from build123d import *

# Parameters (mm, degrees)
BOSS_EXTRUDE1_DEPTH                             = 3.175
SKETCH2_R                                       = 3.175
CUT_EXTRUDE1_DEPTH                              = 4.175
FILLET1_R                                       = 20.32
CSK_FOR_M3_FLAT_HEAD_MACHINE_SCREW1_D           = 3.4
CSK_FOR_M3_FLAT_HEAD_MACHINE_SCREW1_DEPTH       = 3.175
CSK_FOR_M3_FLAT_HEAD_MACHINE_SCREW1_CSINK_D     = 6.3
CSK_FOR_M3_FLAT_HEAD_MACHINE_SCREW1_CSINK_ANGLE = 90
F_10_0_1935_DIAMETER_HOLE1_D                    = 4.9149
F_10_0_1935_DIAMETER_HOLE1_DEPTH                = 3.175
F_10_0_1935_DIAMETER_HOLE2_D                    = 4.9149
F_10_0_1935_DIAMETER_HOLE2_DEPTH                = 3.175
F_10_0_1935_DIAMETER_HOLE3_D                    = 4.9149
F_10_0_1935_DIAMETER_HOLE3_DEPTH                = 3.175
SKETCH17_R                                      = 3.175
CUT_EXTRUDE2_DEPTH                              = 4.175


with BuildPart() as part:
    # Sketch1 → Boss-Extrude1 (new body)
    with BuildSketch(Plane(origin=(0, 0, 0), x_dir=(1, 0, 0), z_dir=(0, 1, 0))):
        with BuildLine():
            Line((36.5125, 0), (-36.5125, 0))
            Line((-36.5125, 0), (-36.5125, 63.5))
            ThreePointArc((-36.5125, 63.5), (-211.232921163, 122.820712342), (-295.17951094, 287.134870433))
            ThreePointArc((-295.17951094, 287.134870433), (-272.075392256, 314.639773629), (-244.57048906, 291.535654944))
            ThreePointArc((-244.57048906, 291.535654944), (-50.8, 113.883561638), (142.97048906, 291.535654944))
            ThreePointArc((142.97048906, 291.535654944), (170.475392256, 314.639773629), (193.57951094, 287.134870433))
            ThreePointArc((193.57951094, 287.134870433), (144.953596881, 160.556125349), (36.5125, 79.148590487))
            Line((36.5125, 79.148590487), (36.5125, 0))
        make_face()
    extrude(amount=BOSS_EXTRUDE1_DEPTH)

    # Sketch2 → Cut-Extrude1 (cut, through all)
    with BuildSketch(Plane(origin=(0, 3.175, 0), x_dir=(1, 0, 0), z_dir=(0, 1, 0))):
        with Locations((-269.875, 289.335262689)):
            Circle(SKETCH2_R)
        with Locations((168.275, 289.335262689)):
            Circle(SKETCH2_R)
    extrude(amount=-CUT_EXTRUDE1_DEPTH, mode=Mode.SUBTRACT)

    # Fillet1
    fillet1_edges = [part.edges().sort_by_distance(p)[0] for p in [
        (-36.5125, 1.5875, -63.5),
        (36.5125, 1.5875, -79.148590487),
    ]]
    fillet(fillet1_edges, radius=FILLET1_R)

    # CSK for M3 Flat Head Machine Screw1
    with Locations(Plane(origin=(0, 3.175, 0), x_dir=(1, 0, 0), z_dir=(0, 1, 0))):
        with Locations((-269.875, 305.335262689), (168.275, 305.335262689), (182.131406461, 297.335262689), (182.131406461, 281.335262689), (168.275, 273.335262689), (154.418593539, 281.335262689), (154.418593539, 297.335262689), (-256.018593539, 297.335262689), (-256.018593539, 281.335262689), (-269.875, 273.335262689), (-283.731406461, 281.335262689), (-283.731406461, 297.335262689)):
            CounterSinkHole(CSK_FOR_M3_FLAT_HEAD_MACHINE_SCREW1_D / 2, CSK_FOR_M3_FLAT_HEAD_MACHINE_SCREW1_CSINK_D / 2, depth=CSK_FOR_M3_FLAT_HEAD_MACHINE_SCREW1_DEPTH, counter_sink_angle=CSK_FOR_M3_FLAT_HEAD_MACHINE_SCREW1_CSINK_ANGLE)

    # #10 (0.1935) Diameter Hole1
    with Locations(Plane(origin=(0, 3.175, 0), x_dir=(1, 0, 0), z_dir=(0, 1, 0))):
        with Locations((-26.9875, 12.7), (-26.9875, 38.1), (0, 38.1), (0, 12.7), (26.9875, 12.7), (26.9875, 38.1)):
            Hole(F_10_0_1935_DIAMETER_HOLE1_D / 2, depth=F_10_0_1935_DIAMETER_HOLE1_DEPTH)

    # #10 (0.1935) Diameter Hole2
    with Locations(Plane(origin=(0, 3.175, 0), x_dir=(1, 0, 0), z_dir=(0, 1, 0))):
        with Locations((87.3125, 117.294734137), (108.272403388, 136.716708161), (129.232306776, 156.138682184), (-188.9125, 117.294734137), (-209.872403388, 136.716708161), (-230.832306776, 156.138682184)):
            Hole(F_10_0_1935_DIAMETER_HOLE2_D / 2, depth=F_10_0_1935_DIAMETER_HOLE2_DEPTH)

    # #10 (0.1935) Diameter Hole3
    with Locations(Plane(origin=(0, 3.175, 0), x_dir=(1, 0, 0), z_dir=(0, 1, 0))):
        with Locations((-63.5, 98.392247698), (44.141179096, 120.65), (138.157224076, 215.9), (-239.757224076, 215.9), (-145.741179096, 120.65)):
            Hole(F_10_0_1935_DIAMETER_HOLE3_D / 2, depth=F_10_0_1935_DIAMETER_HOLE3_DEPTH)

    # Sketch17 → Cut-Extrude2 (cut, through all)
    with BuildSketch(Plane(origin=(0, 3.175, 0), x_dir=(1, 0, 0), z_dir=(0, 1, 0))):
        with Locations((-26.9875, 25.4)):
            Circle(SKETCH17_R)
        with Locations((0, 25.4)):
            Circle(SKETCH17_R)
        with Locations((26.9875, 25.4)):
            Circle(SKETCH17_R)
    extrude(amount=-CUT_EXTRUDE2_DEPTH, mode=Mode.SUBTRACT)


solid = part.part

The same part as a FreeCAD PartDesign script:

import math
import FreeCAD as App
import Part
import Sketcher
from FreeCAD import Vector
Q = App.Units.Quantity


def edges_at(feature, points):
    """Names of the edges that pass closest to the given points."""
    edges = feature.Shape.Edges
    near = lambda p: min(range(len(edges)), key=lambda i: edges[i].distToShape(Part.Vertex(*p))[0])
    return sorted({f"Edge{near(p) + 1}" for p in points})

doc = App.newDocument("Part")
body = doc.addObject("PartDesign::Body", "Body")

sketch1 = doc.addObject("Sketcher::SketchObject", "Sketch")
body.addObject(sketch1)
sketch1.AttachmentSupport = (doc.XZ_Plane, [""])
sketch1.MapMode = "FlatFace"
sketch1.addGeometry(Part.LineSegment(Vector(-37, 0, 0), Vector(37, 0, 0)), False)
sketch1.addGeometry(Part.LineSegment(Vector(37, 0, 0), Vector(37, -79, 0)), False)
sketch1.addGeometry(Part.ArcOfCircle(Part.Circle(Vector(-51, -308, 0), Vector(0, 0, 1), 245), math.radians(5), math.radians(69)), False)
sketch1.addGeometry(Part.ArcOfCircle(Part.Circle(Vector(168, -289, 0), Vector(0, 0, 1), 25), math.radians(-175), math.radians(5)), False)
sketch1.addGeometry(Part.ArcOfCircle(Part.Circle(Vector(-51, -308, 0), Vector(0, 0, 1), 195), math.radians(5), math.radians(175)), False)
sketch1.addGeometry(Part.ArcOfCircle(Part.Circle(Vector(-270, -289, 0), Vector(0, 0, 1), 25), math.radians(175), math.radians(355)), False)
sketch1.addGeometry(Part.ArcOfCircle(Part.Circle(Vector(-51, -308, 0), Vector(0, 0, 1), 245), math.radians(87), math.radians(175)), False)
sketch1.addGeometry(Part.LineSegment(Vector(-37, -64, 0), Vector(-37, 0, 0)), False)
sketch1.addConstraint(Sketcher.Constraint("Coincident", 0, 2, 1, 1))
sketch1.addConstraint(Sketcher.Constraint("Coincident", 1, 2, 2, 2))
sketch1.addConstraint(Sketcher.Constraint("Tangent", 2, 1, 3, 2))
sketch1.addConstraint(Sketcher.Constraint("Tangent", 3, 1, 4, 1))
sketch1.addConstraint(Sketcher.Constraint("Tangent", 4, 2, 5, 2))
sketch1.addConstraint(Sketcher.Constraint("Tangent", 5, 1, 6, 2))
sketch1.addConstraint(Sketcher.Constraint("Coincident", 6, 1, 7, 1))
sketch1.addConstraint(Sketcher.Constraint("Coincident", 7, 2, 0, 1))
sketch1.addConstraint(Sketcher.Constraint("Horizontal", 0))
sketch1.addConstraint(Sketcher.Constraint("Vertical", 1))
sketch1.addConstraint(Sketcher.Constraint("Vertical", 7))
sketch1.addConstraint(Sketcher.Constraint("Coincident", 4, 3, 2, 3))
sketch1.addConstraint(Sketcher.Constraint("Coincident", 6, 3, 2, 3))
sketch1.addConstraint(Sketcher.Constraint("Equal", 3, 5))
sketch1.addConstraint(Sketcher.Constraint("Symmetric", 0, 2, 7, 2, -1, 1))
sketch1.addConstraint(Sketcher.Constraint("Horizontal", 3, 3, 5, 3))
sketch1.addConstraint(Sketcher.Constraint("Radius", 3, Q("1 in")))
sketch1.addConstraint(Sketcher.Constraint("DistanceY", 7, 1, 7, 2, Q("2.5 in")))
sketch1.addConstraint(Sketcher.Constraint("DistanceX", 2, 3, -1, 1, Q("2 in")))
sketch1.addConstraint(Sketcher.Constraint("DistanceX", 0, 1, 0, 2, Q("2.875 in")))
sketch1.addConstraint(Sketcher.Constraint("Radius", 2, 245.301701))
sketch1.addConstraint(Sketcher.Constraint("DistanceY", 2, 3, 3, 3, Q("0.75 in")))
pad1 = doc.addObject("PartDesign::Pad", "Pad")
body.addObject(pad1)
pad1.Profile = sketch1
pad1.Length = Q("0.125 in")
pad1.Reversed = True

sketch2 = doc.addObject("Sketcher::SketchObject", "Sketch001")
body.addObject(sketch2)
sketch2.AttachmentSupport = (doc.XZ_Plane, [""])
sketch2.MapMode = "FlatFace"
sketch2.AttachmentOffset = App.Placement(Vector(0, 0, -0.125 * 25.4), App.Rotation())
sketch2.addGeometry(Part.Circle(Vector(-269.9, -289.3, 0), Vector(0, 0, 1), 3.2), False)
sketch2.addGeometry(Part.Circle(Vector(168.3, -289.3, 0), Vector(0, 0, 1), 3.2), False)
sketch2.addConstraint(Sketcher.Constraint("Equal", 0, 1))
sketch2.addConstraint(Sketcher.Constraint("Horizontal", 0, 3, 1, 3))
sketch2.addConstraint(Sketcher.Constraint("Diameter", 0, Q("0.25 in")))
sketch2.addConstraint(Sketcher.Constraint("DistanceX", 0, 3, 1, 3, Q("17.25 in")))
sketch2.addConstraint(Sketcher.Constraint("DistanceX", 0, 3, -1, 1, Q("10.625 in")))
sketch2.addConstraint(Sketcher.Constraint("DistanceY", 0, 3, -1, 1, 289.335263))
pocket1 = doc.addObject("PartDesign::Pocket", "Pocket")
body.addObject(pocket1)
pocket1.Profile = sketch2
pocket1.Type = "ThroughAll"
pocket1.Reversed = True
doc.recompute()

fillet = doc.addObject("PartDesign::Fillet", "Fillet")
body.addObject(fillet)
fillet.Base = (pocket1, edges_at(pocket1, [(-36.513, 1.587, -63.5), (36.513, 1.587, -79.149)]))
fillet.Radius = Q("0.8 in")

sketch3 = doc.addObject("Sketcher::SketchObject", "Sketch002")
body.addObject(sketch3)
sketch3.AttachmentSupport = (doc.XZ_Plane, [""])
sketch3.MapMode = "FlatFace"
sketch3.AttachmentOffset = App.Placement(Vector(0, 0, -0.125 * 25.4), App.Rotation())
sketch3.addGeometry(Part.Circle(Vector(-269.9, -305.3, 0), Vector(0, 0, 1), 1.7), False)
sketch3.addGeometry(Part.Circle(Vector(168.3, -305.3, 0), Vector(0, 0, 1), 1.7), False)
sketch3.addGeometry(Part.Circle(Vector(182.1, -297.3, 0), Vector(0, 0, 1), 1.7), False)
sketch3.addGeometry(Part.Circle(Vector(182.1, -281.3, 0), Vector(0, 0, 1), 1.7), False)
sketch3.addGeometry(Part.Circle(Vector(168.3, -273.3, 0), Vector(0, 0, 1), 1.7), False)
sketch3.addGeometry(Part.Circle(Vector(154.4, -281.3, 0), Vector(0, 0, 1), 1.7), False)
sketch3.addGeometry(Part.Circle(Vector(154.4, -297.3, 0), Vector(0, 0, 1), 1.7), False)
sketch3.addGeometry(Part.Circle(Vector(-256, -297.3, 0), Vector(0, 0, 1), 1.7), False)
sketch3.addGeometry(Part.Circle(Vector(-256, -281.3, 0), Vector(0, 0, 1), 1.7), False)
sketch3.addGeometry(Part.Circle(Vector(-269.9, -273.3, 0), Vector(0, 0, 1), 1.7), False)
sketch3.addGeometry(Part.Circle(Vector(-283.7, -281.3, 0), Vector(0, 0, 1), 1.7), False)
sketch3.addGeometry(Part.Circle(Vector(-283.7, -297.3, 0), Vector(0, 0, 1), 1.7), False)
sketch3.addConstraint(Sketcher.Constraint("Equal", 0, 1))
sketch3.addConstraint(Sketcher.Constraint("Equal", 1, 2))
sketch3.addConstraint(Sketcher.Constraint("Equal", 2, 3))
sketch3.addConstraint(Sketcher.Constraint("Equal", 3, 4))
sketch3.addConstraint(Sketcher.Constraint("Equal", 4, 5))
sketch3.addConstraint(Sketcher.Constraint("Equal", 5, 6))
sketch3.addConstraint(Sketcher.Constraint("Equal", 6, 7))
sketch3.addConstraint(Sketcher.Constraint("Equal", 7, 8))
sketch3.addConstraint(Sketcher.Constraint("Equal", 8, 9))
sketch3.addConstraint(Sketcher.Constraint("Equal", 9, 10))
sketch3.addConstraint(Sketcher.Constraint("Equal", 10, 11))
sketch3.addConstraint(Sketcher.Constraint("Horizontal", 0, 3, 1, 3))
sketch3.addConstraint(Sketcher.Constraint("Horizontal", 3, 3, 5, 3))
sketch3.addConstraint(Sketcher.Constraint("Horizontal", 2, 3, 6, 3))
sketch3.addConstraint(Sketcher.Constraint("Horizontal", 6, 3, 7, 3))
sketch3.addConstraint(Sketcher.Constraint("Horizontal", 5, 3, 8, 3))
sketch3.addConstraint(Sketcher.Constraint("Horizontal", 4, 3, 9, 3))
sketch3.addConstraint(Sketcher.Constraint("Horizontal", 8, 3, 10, 3))
sketch3.addConstraint(Sketcher.Constraint("Horizontal", 7, 3, 11, 3))
sketch3.addConstraint(Sketcher.Constraint("Vertical", 2, 3, 3, 3))
sketch3.addConstraint(Sketcher.Constraint("Vertical", 1, 3, 4, 3))
sketch3.addConstraint(Sketcher.Constraint("Vertical", 5, 3, 6, 3))
sketch3.addConstraint(Sketcher.Constraint("Vertical", 7, 3, 8, 3))
sketch3.addConstraint(Sketcher.Constraint("Vertical", 0, 3, 9, 3))
sketch3.addConstraint(Sketcher.Constraint("Vertical", 10, 3, 11, 3))
sketch3.addConstraint(Sketcher.Constraint("Diameter", 0, 3.4))
sketch3.addConstraint(Sketcher.Constraint("DistanceX", 0, 3, 1, 3, Q("17.25 in")))
sketch3.addConstraint(Sketcher.Constraint("DistanceX", 10, 3, 5, 3, Q("17.25 in")))
sketch3.addConstraint(Sketcher.Constraint("DistanceX", 0, 3, -1, 1, Q("10.625 in")))
sketch3.addConstraint(Sketcher.Constraint("DistanceY", 1, 3, 2, 3, 8.0))
sketch3.addConstraint(Sketcher.Constraint("DistanceY", 2, 3, 3, 3, 16.0))
sketch3.addConstraint(Sketcher.Constraint("DistanceY", 3, 3, 4, 3, 8.0))
sketch3.addConstraint(Sketcher.Constraint("DistanceY", 0, 3, -1, 1, 305.335263))
sketch3.addConstraint(Sketcher.Constraint("DistanceX", -1, 1, 2, 3, 182.131406))
sketch3.addConstraint(Sketcher.Constraint("DistanceX", -1, 1, 5, 3, 154.418594))
sketch3.addConstraint(Sketcher.Constraint("DistanceX", 7, 3, -1, 1, 256.018594))
doc.recompute()
hole = doc.addObject("PartDesign::Hole", "Hole")
body.addObject(hole)
hole.Profile = sketch3
hole.ThreadType = "None"
hole.Diameter = 3.4
hole.DepthType = "Dimension"
hole.Depth = Q("0.125 in")
hole.DrillPoint = "Flat"
hole.HoleCutType = "Countersink"
hole.HoleCutDiameter = 6.3
hole.HoleCutCountersinkAngle = 90
hole.Reversed = True

sketch4 = doc.addObject("Sketcher::SketchObject", "Sketch003")
body.addObject(sketch4)
sketch4.AttachmentSupport = (doc.XZ_Plane, [""])
sketch4.MapMode = "FlatFace"
sketch4.AttachmentOffset = App.Placement(Vector(0, 0, -0.125 * 25.4), App.Rotation())
sketch4.addGeometry(Part.Circle(Vector(-27, -12.7, 0), Vector(0, 0, 1), 2.5), False)
sketch4.addGeometry(Part.Circle(Vector(-27, -38.1, 0), Vector(0, 0, 1), 2.5), False)
sketch4.addGeometry(Part.Circle(Vector(0, -38.1, 0), Vector(0, 0, 1), 2.5), False)
sketch4.addGeometry(Part.Circle(Vector(0, -12.7, 0), Vector(0, 0, 1), 2.5), False)
sketch4.addGeometry(Part.Circle(Vector(27, -12.7, 0), Vector(0, 0, 1), 2.5), False)
sketch4.addGeometry(Part.Circle(Vector(27, -38.1, 0), Vector(0, 0, 1), 2.5), False)
sketch4.addConstraint(Sketcher.Constraint("Equal", 0, 1))
sketch4.addConstraint(Sketcher.Constraint("Equal", 1, 2))
sketch4.addConstraint(Sketcher.Constraint("Equal", 2, 3))
sketch4.addConstraint(Sketcher.Constraint("Equal", 3, 4))
sketch4.addConstraint(Sketcher.Constraint("Equal", 4, 5))
sketch4.addConstraint(Sketcher.Constraint("Symmetric", 0, 3, 4, 3, -2))
sketch4.addConstraint(Sketcher.Constraint("Symmetric", 1, 3, 5, 3, -2))
sketch4.addConstraint(Sketcher.Constraint("PointOnObject", 2, 3, -2))
sketch4.addConstraint(Sketcher.Constraint("PointOnObject", 3, 3, -2))
sketch4.addConstraint(Sketcher.Constraint("Horizontal", 1, 3, 2, 3))
sketch4.addConstraint(Sketcher.Constraint("Horizontal", 0, 3, 3, 3))
sketch4.addConstraint(Sketcher.Constraint("Vertical", 0, 3, 1, 3))
sketch4.addConstraint(Sketcher.Constraint("DistanceY", 1, 3, 0, 3, Q("1 in")))
sketch4.addConstraint(Sketcher.Constraint("Diameter", 0, Q("0.1935 in")))
sketch4.addConstraint(Sketcher.Constraint("DistanceY", 0, 3, -1, 1, Q("0.5 in")))
sketch4.addConstraint(Sketcher.Constraint("DistanceX", 0, 3, -1, 1, Q("1.0625 in")))
doc.recompute()
hole2 = doc.addObject("PartDesign::Hole", "Hole001")
body.addObject(hole2)
hole2.Profile = sketch4
hole2.ThreadType = "None"
hole2.Diameter = Q("0.1935 in")
hole2.DepthType = "Dimension"
hole2.Depth = Q("0.125 in")
hole2.DrillPoint = "Flat"
hole2.Reversed = True

sketch5 = doc.addObject("Sketcher::SketchObject", "Sketch004")
body.addObject(sketch5)
sketch5.AttachmentSupport = (doc.XZ_Plane, [""])
sketch5.MapMode = "FlatFace"
sketch5.AttachmentOffset = App.Placement(Vector(0, 0, -0.125 * 25.4), App.Rotation())
sketch5.addGeometry(Part.Circle(Vector(87.3, -117.3, 0), Vector(0, 0, 1), 2.5), False)
sketch5.addGeometry(Part.Circle(Vector(108.3, -136.7, 0), Vector(0, 0, 1), 2.5), False)
sketch5.addGeometry(Part.Circle(Vector(129.2, -156.1, 0), Vector(0, 0, 1), 2.5), False)
sketch5.addGeometry(Part.Circle(Vector(-188.9, -117.3, 0), Vector(0, 0, 1), 2.5), False)
sketch5.addGeometry(Part.Circle(Vector(-209.9, -136.7, 0), Vector(0, 0, 1), 2.5), False)
sketch5.addGeometry(Part.Circle(Vector(-230.8, -156.1, 0), Vector(0, 0, 1), 2.5), False)
sketch5.addConstraint(Sketcher.Constraint("Equal", 0, 1))
sketch5.addConstraint(Sketcher.Constraint("Equal", 1, 2))
sketch5.addConstraint(Sketcher.Constraint("Equal", 2, 3))
sketch5.addConstraint(Sketcher.Constraint("Equal", 3, 4))
sketch5.addConstraint(Sketcher.Constraint("Equal", 4, 5))
sketch5.addConstraint(Sketcher.Constraint("Horizontal", 0, 3, 3, 3))
sketch5.addConstraint(Sketcher.Constraint("Horizontal", 1, 3, 4, 3))
sketch5.addConstraint(Sketcher.Constraint("Horizontal", 2, 3, 5, 3))
sketch5.addConstraint(Sketcher.Constraint("Diameter", 0, Q("0.1935 in")))
sketch5.addConstraint(Sketcher.Constraint("DistanceX", -1, 1, 0, 3, Q("3.4375 in")))
sketch5.addConstraint(Sketcher.Constraint("DistanceX", 3, 3, -1, 1, Q("7.4375 in")))
sketch5.addConstraint(Sketcher.Constraint("DistanceY", 1, 3, -1, 1, 136.716708))
sketch5.addConstraint(Sketcher.Constraint("DistanceY", 2, 3, 0, 3, 38.843948))
sketch5.addConstraint(Sketcher.Constraint("DistanceX", 4, 3, 2, 3, 339.10471))
sketch5.addConstraint(Sketcher.Constraint("DistanceX", 5, 3, 1, 3, 339.10471))
sketch5.addConstraint(Sketcher.Constraint("DistanceY", 0, 3, -1, 1, 117.294734))
sketch5.addConstraint(Sketcher.Constraint("DistanceX", -1, 1, 1, 3, 108.272403))
sketch5.addConstraint(Sketcher.Constraint("DistanceX", -1, 1, 2, 3, 129.232307))
doc.recompute()
hole3 = doc.addObject("PartDesign::Hole", "Hole002")
body.addObject(hole3)
hole3.Profile = sketch5
hole3.ThreadType = "None"
hole3.Diameter = Q("0.1935 in")
hole3.DepthType = "Dimension"
hole3.Depth = Q("0.125 in")
hole3.DrillPoint = "Flat"
hole3.Reversed = True

sketch6 = doc.addObject("Sketcher::SketchObject", "Sketch005")
body.addObject(sketch6)
sketch6.AttachmentSupport = (doc.XZ_Plane, [""])
sketch6.MapMode = "FlatFace"
sketch6.AttachmentOffset = App.Placement(Vector(0, 0, -0.125 * 25.4), App.Rotation())
sketch6.addGeometry(Part.Circle(Vector(-63.5, -98.4, 0), Vector(0, 0, 1), 2.5), False)
sketch6.addGeometry(Part.Circle(Vector(44.1, -120.7, 0), Vector(0, 0, 1), 2.5), False)
sketch6.addGeometry(Part.Circle(Vector(138.2, -215.9, 0), Vector(0, 0, 1), 2.5), False)
sketch6.addGeometry(Part.Circle(Vector(-239.8, -215.9, 0), Vector(0, 0, 1), 2.5), False)
sketch6.addGeometry(Part.Circle(Vector(-145.7, -120.7, 0), Vector(0, 0, 1), 2.5), False)
sketch6.addConstraint(Sketcher.Constraint("Equal", 0, 1))
sketch6.addConstraint(Sketcher.Constraint("Equal", 1, 2))
sketch6.addConstraint(Sketcher.Constraint("Equal", 2, 3))
sketch6.addConstraint(Sketcher.Constraint("Equal", 3, 4))
sketch6.addConstraint(Sketcher.Constraint("Horizontal", 2, 3, 3, 3))
sketch6.addConstraint(Sketcher.Constraint("Horizontal", 1, 3, 4, 3))
sketch6.addConstraint(Sketcher.Constraint("Diameter", 0, Q("0.1935 in")))
sketch6.addConstraint(Sketcher.Constraint("DistanceX", 0, 3, -1, 1, Q("2.5 in")))
sketch6.addConstraint(Sketcher.Constraint("DistanceY", 2, 3, -1, 1, Q("8.5 in")))
sketch6.addConstraint(Sketcher.Constraint("DistanceY", 1, 3, -1, 1, Q("4.75 in")))
sketch6.addConstraint(Sketcher.Constraint("DistanceX", -1, 1, 1, 3, 44.141179))
sketch6.addConstraint(Sketcher.Constraint("DistanceX", 4, 3, -1, 1, 145.741179))
sketch6.addConstraint(Sketcher.Constraint("DistanceX", 3, 3, 2, 3, 377.914448))
sketch6.addConstraint(Sketcher.Constraint("DistanceY", 0, 3, -1, 1, 98.392248))
sketch6.addConstraint(Sketcher.Constraint("DistanceX", -1, 1, 2, 3, 138.157224))
doc.recompute()
hole4 = doc.addObject("PartDesign::Hole", "Hole003")
body.addObject(hole4)
hole4.Profile = sketch6
hole4.ThreadType = "None"
hole4.Diameter = Q("0.1935 in")
hole4.DepthType = "Dimension"
hole4.Depth = Q("0.125 in")
hole4.DrillPoint = "Flat"
hole4.Reversed = True

sketch7 = doc.addObject("Sketcher::SketchObject", "Sketch006")
body.addObject(sketch7)
sketch7.AttachmentSupport = (doc.XZ_Plane, [""])
sketch7.MapMode = "FlatFace"
sketch7.AttachmentOffset = App.Placement(Vector(0, 0, -0.125 * 25.4), App.Rotation())
sketch7.addGeometry(Part.Circle(Vector(-27, -25.4, 0), Vector(0, 0, 1), 3.2), False)
sketch7.addGeometry(Part.Circle(Vector(0, -25.4, 0), Vector(0, 0, 1), 3.2), False)
sketch7.addGeometry(Part.Circle(Vector(27, -25.4, 0), Vector(0, 0, 1), 3.2), False)
sketch7.addConstraint(Sketcher.Constraint("Equal", 0, 1))
sketch7.addConstraint(Sketcher.Constraint("Equal", 1, 2))
sketch7.addConstraint(Sketcher.Constraint("Symmetric", 0, 3, 2, 3, -2))
sketch7.addConstraint(Sketcher.Constraint("PointOnObject", 1, 3, -2))
sketch7.addConstraint(Sketcher.Constraint("Horizontal", 0, 3, 1, 3))
sketch7.addConstraint(Sketcher.Constraint("Diameter", 0, Q("0.25 in")))
sketch7.addConstraint(Sketcher.Constraint("DistanceY", 0, 3, -1, 1, Q("1 in")))
sketch7.addConstraint(Sketcher.Constraint("DistanceX", 0, 3, -1, 1, Q("1.0625 in")))
pocket2 = doc.addObject("PartDesign::Pocket", "Pocket001")
body.addObject(pocket2)
pocket2.Profile = sketch7
pocket2.Type = "ThroughAll"
pocket2.Reversed = True

doc.recompute()
